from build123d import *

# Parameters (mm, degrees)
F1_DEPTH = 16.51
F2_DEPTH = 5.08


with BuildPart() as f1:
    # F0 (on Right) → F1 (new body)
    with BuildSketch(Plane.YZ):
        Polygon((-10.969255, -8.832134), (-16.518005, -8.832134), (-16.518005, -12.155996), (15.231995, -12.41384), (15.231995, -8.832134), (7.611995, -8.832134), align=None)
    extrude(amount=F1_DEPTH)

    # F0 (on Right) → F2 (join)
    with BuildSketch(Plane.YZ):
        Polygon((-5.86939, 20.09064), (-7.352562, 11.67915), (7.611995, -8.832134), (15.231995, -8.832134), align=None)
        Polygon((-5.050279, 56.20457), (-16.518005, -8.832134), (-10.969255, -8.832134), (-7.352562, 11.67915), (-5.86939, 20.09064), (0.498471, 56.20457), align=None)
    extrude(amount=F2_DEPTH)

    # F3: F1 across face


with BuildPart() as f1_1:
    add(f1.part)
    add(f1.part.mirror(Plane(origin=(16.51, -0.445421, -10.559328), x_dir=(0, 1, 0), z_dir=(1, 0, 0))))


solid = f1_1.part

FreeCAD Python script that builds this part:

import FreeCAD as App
import Part
import Sketcher
from FreeCAD import Vector
Q = App.Units.Quantity

doc = App.newDocument("Part")
body = doc.addObject("PartDesign::Body", "Body")

# Sketch on YZ plane
sketch1 = body.newObject("Sketcher::SketchObject", "Sketch")
sketch1.AttachmentSupport = (doc.getObject("YZ_Plane"), [""])
sketch1.MapMode = "FlatFace"
sketch1.addGeometry([
    Part.LineSegment(Vector(-16.5, -8.8, 0), Vector(-16.5, -12.2, 0)),
    Part.LineSegment(Vector(-16.5, -12.2, 0), Vector(15.2, -12.4, 0)),
    Part.LineSegment(Vector(15.2, -12.4, 0), Vector(15.2, -8.8, 0)),
    Part.LineSegment(Vector(15.2, -8.8, 0), Vector(-16.5, -8.8, 0)),
], False)
sketch1.addConstraint([
    Sketcher.Constraint("Coincident", 0, 2, 1, 1),
    Sketcher.Constraint("Coincident", 1, 2, 2, 1),
    Sketcher.Constraint("Coincident", 2, 2, 3, 1),
    Sketcher.Constraint("Coincident", 3, 2, 0, 1),
    Sketcher.Constraint("Vertical", 0),
    Sketcher.Constraint("Vertical", 2),
    Sketcher.Constraint("Horizontal", 3),
    Sketcher.Constraint("DistanceX", 3, 2, 3, 1, Q("1.25 in")),
    Sketcher.Constraint("DistanceY", 0, 2, 0, 1, 3.323862),
    Sketcher.Constraint("DistanceY", 2, 1, 2, 2, 3.581706),
    Sketcher.Constraint("DistanceY", 1, 2, -1, 1, 12.41384),
    Sketcher.Constraint("DistanceX", 0, 2, -1, 1, 16.518005),
])
pad1 = body.newObject("PartDesign::Pad", "Pad")
pad1.Profile = sketch1
pad1.Length = Q("0.65 in")

# Sketch on YZ plane
sketch2 = body.newObject("Sketcher::SketchObject", "Sketch001")
sketch2.AttachmentSupport = (doc.getObject("YZ_Plane"), [""])
sketch2.MapMode = "FlatFace"
sketch2.addGeometry([
    Part.LineSegment(Vector(-7, 12, 0), Vector(8, -9, 0)),  # 0
    Part.LineSegment(Vector(8, -9, 0), Vector(15, -9, 0)),  # 1
    Part.LineSegment(Vector(15, -9, 0), Vector(-6, 20, 0)),  # 2
    Part.LineSegment(Vector(-6, 20, 0), Vector(0, 56, 0)),  # 3
    Part.LineSegment(Vector(0, 56, 0), Vector(-5, 56, 0)),  # 4
    Part.LineSegment(Vector(-5, 56, 0), Vector(-17, -9, 0)),  # 5
    Part.LineSegment(Vector(-17, -9, 0), Vector(-11, -9, 0)),  # 6
    Part.LineSegment(Vector(-11, -9, 0), Vector(-7, 12, 0)),  # 7
], False)
sketch2.addConstraint([
    Sketcher.Constraint("Coincident", 0, 2, 1, 1),
    Sketcher.Constraint("Coincident", 1, 2, 2, 1),
    Sketcher.Constraint("Coincident", 2, 2, 3, 1),
    Sketcher.Constraint("Coincident", 3, 2, 4, 1),
    Sketcher.Constraint("Coincident", 4, 2, 5, 1),
    Sketcher.Constraint("Coincident", 5, 2, 6, 1),
    Sketcher.Constraint("Coincident", 6, 2, 7, 1),
    Sketcher.Constraint("Coincident", 7, 2, 0, 1),
    Sketcher.Constraint("Horizontal", 1),
    Sketcher.Constraint("Horizontal", 4),
    Sketcher.Constraint("Horizontal", 6),
    Sketcher.Constraint("Parallel", 0, 2),
    Sketcher.Constraint("Parallel", 3, 5),
    Sketcher.Constraint("Parallel", 5, 7),
    Sketcher.Constraint("Horizontal", 1, 2, 5, 2),
    Sketcher.Constraint("Equal", 4, 6),
    Sketcher.Constraint("DistanceX", 1, 1, 1, 2, Q("0.3 in")),
    Sketcher.Constraint("Angle", 3, Q("79.999999 deg")),
    Sketcher.Constraint("Distance", 5, Q("2.6 in")),
    Sketcher.Constraint("DistanceX", 5, 2, 0, 2, Q("0.95 in")),
    Sketcher.Constraint("DistanceX", 4, 2, 4, 1, 5.54875),
    Sketcher.Constraint("Distance", 2, 35.802169),
    Sketcher.Constraint("DistanceX", 2, 2, -1, 1, 5.86939),
    Sketcher.Constraint("DistanceY", -1, 1, 2, 2, 20.09064),
])
pad2 = body.newObject("PartDesign::Pad", "Pad001")
pad2.Profile = sketch2
pad2.Length = Q("0.2 in")
body2 = doc.addObject("PartDesign::Body", "Body001")
doc.recompute()

body2.BaseFeature = body
doc.recompute()

mirroring = doc.addObject("Part::Mirroring", "Mirroring")
mirroring.Source = body
mirroring.Base = Vector(16.51, -0.445421, -10.559328)
mirroring.Normal = Vector(1, 0, 0)
body3 = doc.addObject("PartDesign::Body", "Body002")
body3.BaseFeature = mirroring
boolean = body2.newObject("PartDesign::Boolean", "Boolean")
boolean.Type = "Fuse"
boolean.addObjects([body3])
doc.recompute()
mirroring.Visibility = False

doc.recompute()
